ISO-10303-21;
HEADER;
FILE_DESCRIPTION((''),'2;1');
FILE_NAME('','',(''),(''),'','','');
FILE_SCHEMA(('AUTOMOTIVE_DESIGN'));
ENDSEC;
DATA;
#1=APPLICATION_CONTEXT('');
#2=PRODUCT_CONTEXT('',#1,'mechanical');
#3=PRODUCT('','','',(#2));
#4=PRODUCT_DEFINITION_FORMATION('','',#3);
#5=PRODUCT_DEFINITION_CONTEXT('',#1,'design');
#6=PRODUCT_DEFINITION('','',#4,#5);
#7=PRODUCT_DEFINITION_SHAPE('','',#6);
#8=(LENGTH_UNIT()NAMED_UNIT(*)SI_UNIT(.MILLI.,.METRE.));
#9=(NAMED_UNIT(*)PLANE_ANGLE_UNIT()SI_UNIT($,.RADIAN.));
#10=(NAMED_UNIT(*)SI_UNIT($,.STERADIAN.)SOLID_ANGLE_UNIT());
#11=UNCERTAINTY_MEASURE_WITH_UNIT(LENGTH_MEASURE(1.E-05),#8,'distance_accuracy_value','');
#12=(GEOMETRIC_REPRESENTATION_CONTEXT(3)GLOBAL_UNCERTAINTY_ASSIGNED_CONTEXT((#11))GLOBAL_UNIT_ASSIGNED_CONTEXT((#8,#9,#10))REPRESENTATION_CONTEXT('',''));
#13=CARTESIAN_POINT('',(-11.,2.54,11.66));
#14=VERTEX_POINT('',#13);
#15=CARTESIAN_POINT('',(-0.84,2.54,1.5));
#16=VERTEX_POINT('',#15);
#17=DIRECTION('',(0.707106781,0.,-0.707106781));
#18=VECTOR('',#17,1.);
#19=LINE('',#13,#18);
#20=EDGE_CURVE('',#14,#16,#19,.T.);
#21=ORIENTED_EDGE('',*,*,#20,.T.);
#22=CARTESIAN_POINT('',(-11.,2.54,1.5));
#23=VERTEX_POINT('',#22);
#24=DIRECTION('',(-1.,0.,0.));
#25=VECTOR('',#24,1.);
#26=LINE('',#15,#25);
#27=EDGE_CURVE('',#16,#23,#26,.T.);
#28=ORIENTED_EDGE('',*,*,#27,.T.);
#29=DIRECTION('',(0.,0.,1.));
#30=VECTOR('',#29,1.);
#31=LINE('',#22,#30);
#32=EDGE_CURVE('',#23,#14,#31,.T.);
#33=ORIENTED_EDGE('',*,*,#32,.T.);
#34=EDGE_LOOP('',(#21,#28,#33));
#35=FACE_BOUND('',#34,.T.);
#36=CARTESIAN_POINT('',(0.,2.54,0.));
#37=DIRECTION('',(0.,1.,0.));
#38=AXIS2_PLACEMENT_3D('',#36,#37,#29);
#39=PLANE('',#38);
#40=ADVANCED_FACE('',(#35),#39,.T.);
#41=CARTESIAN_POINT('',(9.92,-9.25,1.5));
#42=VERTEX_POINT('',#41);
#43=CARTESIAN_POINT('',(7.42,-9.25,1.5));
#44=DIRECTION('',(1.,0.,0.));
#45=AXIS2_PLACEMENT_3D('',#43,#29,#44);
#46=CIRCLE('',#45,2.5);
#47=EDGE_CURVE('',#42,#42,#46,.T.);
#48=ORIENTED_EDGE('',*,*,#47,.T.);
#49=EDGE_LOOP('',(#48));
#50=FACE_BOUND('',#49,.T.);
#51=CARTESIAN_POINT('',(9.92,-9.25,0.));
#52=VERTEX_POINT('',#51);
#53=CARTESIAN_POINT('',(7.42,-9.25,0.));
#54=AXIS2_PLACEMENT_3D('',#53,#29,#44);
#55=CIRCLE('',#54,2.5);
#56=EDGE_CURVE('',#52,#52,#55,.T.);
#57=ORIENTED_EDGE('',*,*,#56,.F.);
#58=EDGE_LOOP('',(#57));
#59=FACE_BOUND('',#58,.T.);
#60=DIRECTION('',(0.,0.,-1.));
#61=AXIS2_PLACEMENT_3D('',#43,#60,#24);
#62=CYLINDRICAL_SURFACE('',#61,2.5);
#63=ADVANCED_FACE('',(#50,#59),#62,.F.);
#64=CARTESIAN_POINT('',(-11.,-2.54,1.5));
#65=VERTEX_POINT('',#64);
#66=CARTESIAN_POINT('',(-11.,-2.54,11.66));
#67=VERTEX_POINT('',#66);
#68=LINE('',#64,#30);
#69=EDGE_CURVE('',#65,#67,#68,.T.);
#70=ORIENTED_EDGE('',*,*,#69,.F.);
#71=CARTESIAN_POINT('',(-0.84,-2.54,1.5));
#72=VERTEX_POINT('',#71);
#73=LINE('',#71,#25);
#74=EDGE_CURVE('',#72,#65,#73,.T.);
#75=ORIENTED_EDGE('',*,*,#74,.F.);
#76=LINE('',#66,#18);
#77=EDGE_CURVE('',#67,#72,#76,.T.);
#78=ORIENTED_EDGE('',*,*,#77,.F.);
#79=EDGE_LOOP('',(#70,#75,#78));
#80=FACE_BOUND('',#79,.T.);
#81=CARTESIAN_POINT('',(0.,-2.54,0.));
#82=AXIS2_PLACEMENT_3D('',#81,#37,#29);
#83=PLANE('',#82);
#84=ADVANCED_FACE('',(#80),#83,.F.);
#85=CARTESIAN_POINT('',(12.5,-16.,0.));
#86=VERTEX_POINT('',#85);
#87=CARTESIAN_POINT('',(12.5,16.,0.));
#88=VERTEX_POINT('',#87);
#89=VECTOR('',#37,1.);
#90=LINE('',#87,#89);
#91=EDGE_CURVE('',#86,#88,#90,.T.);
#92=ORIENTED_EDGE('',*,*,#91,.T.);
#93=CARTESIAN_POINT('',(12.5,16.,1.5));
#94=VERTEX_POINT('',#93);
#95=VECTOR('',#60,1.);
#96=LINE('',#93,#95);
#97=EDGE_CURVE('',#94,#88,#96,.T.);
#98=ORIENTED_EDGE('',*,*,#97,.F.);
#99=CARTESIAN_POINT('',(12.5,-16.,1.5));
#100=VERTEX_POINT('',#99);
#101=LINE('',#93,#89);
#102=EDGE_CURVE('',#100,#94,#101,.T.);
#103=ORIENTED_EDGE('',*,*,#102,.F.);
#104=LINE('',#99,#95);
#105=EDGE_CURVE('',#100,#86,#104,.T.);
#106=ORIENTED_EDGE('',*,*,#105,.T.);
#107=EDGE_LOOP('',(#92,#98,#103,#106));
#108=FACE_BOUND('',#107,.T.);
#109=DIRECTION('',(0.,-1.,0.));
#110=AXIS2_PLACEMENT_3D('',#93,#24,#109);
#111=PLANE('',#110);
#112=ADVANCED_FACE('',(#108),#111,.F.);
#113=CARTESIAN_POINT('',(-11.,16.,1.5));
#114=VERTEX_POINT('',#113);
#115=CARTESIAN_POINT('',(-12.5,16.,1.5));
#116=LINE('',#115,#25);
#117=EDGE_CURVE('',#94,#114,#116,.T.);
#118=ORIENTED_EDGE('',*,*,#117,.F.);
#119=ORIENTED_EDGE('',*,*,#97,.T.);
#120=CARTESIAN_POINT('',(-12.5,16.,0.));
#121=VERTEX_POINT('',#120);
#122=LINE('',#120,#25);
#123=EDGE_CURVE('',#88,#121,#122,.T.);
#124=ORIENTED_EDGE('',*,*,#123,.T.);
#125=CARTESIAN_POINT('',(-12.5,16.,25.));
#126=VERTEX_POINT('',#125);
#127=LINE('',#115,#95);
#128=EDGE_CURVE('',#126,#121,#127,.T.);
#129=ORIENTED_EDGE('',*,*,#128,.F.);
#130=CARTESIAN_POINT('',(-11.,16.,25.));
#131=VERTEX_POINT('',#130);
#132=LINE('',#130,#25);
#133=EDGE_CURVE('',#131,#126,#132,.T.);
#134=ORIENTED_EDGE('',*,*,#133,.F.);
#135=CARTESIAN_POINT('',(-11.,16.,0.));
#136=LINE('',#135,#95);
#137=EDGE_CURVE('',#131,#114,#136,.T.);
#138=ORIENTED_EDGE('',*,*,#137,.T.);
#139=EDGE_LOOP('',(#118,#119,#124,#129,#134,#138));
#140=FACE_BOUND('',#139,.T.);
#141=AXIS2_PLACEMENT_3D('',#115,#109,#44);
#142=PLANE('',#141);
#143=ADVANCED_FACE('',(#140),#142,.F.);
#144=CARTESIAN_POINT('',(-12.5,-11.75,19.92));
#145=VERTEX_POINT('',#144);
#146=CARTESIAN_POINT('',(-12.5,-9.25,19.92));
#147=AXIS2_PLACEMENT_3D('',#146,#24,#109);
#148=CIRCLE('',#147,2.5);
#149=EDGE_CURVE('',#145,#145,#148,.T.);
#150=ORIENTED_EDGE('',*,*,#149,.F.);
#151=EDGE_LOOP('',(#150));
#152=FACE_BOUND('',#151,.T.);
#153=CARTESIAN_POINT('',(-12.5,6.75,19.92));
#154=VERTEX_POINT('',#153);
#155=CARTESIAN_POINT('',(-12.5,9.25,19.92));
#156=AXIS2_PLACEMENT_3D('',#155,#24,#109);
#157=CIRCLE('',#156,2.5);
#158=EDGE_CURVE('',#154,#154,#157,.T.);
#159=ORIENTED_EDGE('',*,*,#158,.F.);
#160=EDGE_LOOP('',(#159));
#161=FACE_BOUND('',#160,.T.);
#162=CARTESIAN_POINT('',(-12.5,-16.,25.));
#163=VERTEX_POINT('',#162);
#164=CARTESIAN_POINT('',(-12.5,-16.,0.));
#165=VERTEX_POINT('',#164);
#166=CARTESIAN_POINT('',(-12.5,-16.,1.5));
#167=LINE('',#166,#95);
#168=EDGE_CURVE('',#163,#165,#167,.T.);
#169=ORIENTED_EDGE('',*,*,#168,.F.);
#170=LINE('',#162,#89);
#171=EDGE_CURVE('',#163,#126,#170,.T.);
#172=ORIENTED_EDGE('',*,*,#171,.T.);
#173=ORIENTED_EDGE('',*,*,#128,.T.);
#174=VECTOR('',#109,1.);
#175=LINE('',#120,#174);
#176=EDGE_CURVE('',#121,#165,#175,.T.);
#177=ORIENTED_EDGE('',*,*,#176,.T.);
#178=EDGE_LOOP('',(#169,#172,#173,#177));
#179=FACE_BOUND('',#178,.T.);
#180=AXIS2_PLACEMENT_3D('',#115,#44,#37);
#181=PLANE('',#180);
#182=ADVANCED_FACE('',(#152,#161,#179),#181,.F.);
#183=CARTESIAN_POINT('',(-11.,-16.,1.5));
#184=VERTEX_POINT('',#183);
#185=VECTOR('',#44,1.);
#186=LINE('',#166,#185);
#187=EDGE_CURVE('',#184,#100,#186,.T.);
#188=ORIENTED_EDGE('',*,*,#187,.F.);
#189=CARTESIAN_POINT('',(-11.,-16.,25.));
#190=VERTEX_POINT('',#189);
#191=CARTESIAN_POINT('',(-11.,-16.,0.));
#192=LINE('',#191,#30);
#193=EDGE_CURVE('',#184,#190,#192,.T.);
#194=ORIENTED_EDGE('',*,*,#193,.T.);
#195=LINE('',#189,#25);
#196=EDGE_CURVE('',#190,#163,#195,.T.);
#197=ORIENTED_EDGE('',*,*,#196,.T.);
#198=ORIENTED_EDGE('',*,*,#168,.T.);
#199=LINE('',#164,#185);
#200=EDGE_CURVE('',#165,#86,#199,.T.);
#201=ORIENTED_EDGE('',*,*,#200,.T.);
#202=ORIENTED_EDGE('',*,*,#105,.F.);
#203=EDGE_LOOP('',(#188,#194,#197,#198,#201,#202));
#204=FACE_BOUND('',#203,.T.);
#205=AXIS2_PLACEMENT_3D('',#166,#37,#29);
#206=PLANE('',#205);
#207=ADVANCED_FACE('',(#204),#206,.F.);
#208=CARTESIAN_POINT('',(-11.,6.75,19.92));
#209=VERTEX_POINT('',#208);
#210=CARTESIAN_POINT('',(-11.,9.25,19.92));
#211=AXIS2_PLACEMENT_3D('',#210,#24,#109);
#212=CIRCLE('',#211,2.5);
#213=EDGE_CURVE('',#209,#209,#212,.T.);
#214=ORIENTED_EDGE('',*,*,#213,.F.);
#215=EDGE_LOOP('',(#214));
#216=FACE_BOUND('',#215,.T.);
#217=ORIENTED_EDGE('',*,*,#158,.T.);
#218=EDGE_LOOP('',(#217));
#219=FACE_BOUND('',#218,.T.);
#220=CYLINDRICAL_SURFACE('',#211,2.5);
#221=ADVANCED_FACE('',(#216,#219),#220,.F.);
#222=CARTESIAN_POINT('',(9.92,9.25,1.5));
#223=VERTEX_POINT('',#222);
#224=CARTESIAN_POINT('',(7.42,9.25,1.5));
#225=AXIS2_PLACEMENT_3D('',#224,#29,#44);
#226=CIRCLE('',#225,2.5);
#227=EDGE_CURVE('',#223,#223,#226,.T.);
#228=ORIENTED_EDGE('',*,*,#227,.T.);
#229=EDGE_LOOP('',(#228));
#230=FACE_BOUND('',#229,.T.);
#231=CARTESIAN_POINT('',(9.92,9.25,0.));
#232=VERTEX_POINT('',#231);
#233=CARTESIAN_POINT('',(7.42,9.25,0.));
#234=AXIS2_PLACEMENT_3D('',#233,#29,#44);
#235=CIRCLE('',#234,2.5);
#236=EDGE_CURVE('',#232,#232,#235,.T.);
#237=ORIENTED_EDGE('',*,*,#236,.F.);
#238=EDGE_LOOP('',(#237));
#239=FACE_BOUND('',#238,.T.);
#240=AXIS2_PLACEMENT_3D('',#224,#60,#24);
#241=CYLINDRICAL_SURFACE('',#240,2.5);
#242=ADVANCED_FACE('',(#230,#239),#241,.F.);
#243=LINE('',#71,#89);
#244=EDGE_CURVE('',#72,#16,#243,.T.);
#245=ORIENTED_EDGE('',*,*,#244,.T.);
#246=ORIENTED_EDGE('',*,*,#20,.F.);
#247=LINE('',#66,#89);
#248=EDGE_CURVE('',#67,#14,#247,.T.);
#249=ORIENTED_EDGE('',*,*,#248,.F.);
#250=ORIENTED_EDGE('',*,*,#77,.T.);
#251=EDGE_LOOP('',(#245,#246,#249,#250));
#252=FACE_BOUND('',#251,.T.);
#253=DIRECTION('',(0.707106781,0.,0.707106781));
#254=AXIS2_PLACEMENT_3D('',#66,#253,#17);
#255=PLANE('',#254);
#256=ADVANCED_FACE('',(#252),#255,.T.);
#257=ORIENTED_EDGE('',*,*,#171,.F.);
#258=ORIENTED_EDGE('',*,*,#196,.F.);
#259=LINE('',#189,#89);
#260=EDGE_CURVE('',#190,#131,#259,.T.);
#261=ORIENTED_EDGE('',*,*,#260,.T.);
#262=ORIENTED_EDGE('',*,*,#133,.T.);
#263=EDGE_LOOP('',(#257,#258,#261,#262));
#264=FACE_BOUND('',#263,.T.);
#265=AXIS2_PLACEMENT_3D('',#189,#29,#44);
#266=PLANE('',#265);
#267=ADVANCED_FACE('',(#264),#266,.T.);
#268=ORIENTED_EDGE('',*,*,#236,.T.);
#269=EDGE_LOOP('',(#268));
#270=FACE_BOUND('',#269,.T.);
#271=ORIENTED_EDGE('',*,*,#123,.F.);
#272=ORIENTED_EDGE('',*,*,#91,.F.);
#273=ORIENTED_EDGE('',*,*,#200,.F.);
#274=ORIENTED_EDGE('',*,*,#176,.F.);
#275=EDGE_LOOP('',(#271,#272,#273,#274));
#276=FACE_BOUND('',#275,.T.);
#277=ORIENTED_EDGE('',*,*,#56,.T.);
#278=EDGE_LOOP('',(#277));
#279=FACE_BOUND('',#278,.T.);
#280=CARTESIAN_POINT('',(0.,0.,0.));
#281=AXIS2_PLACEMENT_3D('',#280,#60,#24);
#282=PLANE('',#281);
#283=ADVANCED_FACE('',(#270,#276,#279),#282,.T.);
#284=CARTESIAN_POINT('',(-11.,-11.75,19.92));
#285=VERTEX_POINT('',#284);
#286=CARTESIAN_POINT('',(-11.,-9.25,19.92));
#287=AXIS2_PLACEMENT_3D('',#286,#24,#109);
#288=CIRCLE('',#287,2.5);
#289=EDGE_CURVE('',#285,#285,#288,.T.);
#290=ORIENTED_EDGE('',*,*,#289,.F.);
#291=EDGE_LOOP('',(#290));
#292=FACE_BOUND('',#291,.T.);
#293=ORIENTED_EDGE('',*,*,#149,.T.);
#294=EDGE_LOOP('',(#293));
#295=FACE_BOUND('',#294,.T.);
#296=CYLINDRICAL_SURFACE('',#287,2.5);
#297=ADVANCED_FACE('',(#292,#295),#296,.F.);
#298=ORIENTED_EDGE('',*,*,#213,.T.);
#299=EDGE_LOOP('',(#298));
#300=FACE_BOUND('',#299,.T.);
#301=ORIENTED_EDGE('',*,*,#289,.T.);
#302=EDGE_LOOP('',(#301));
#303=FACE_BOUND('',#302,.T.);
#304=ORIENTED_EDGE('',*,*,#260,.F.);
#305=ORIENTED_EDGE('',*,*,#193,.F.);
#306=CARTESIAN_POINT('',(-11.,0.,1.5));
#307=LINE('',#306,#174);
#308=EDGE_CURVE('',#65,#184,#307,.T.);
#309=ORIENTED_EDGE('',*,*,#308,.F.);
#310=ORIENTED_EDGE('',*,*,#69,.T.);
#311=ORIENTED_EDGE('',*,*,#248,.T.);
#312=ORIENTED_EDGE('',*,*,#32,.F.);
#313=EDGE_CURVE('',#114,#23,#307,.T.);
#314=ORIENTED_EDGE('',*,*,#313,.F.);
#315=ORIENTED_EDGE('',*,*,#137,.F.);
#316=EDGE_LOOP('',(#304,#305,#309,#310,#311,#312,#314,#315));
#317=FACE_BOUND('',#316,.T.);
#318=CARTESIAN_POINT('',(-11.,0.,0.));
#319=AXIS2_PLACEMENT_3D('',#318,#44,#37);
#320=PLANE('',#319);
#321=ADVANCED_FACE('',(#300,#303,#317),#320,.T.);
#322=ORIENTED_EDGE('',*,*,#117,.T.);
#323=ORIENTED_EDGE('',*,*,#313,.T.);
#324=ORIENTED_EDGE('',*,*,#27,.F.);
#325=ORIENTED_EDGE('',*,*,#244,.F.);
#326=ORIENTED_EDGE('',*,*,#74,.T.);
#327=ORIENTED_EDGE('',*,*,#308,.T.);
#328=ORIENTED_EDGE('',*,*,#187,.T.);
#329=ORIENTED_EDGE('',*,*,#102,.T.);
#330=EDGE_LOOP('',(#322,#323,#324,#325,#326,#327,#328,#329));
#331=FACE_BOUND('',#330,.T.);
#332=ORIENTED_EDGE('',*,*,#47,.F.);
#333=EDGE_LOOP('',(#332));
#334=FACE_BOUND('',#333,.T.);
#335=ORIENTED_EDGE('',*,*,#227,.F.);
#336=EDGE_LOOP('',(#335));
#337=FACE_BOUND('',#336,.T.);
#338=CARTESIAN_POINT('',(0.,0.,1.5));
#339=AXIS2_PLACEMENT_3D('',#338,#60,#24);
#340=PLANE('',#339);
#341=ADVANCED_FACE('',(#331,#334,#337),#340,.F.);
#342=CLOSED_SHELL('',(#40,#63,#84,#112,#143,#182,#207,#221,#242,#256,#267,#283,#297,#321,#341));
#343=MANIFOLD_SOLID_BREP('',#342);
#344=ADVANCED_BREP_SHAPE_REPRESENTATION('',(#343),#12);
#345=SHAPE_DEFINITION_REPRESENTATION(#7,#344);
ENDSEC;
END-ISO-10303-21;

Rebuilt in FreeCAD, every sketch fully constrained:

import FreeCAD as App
import Part
import Sketcher
Q = App.Units.Quantity


def add_polygon(sketch, points):
    """Adds a closed chain of lines whose ends are joined by coincident constraints."""
    first, n = sketch.GeometryCount, len(points)
    for a, b in zip(points, points[1:] + points[:1]):
        sketch.addGeometry(Part.LineSegment(App.Vector(*a, 0), App.Vector(*b, 0)), False)
    for i in range(n):
        sketch.addConstraint(Sketcher.Constraint("Coincident", first + i, 2, first + (i + 1) % n, 1))

doc = App.newDocument("Part")
body = doc.addObject("PartDesign::Body", "Body")

sketch1 = doc.addObject("Sketcher::SketchObject", "Sketch")
body.addObject(sketch1)
sketch1.AttachmentSupport = (doc.XY_Plane, [""])
sketch1.MapMode = "FlatFace"
add_polygon(sketch1, [(-12.5, 16), (-12.5, -16), (12.5, -16), (12.5, 16)])
sketch1.addGeometry(Part.Circle(App.Vector(7.4, -9.2, 0), App.Vector(0, 0, 1), 2.5), False)
sketch1.addGeometry(Part.Circle(App.Vector(7.4, 9.2, 0), App.Vector(0, 0, 1), 2.5), False)
sketch1.addConstraint([
    Sketcher.Constraint("Vertical", 0),
    Sketcher.Constraint("Horizontal", 1),
    Sketcher.Constraint("Vertical", 2),
    Sketcher.Constraint("Horizontal", 3),
    Sketcher.Constraint("Equal", 4, 5),
    Sketcher.Constraint("Symmetric", 0, 2, 2, 2, -1, 1),
    Sketcher.Constraint("Symmetric", 4, 3, 5, 3, -1),
    Sketcher.Constraint("Diameter", 4, Q("5 mm")),
    Sketcher.Constraint("DistanceX", 1, 1, 1, 2, Q("25 mm")),
    Sketcher.Constraint("DistanceY", 0, 2, 0, 1, Q("32 mm")),
    Sketcher.Constraint("DistanceY", 4, 3, 5, 3, Q("18.5 mm")),
    Sketcher.Constraint("DistanceX", -1, 1, 4, 3, Q("7.42 mm")),
])
pad1 = doc.addObject("PartDesign::Pad", "Pad")
body.addObject(pad1)
pad1.Profile = sketch1
pad1.Length = 1.5

sketch2 = doc.addObject("Sketcher::SketchObject", "Sketch001")
body.addObject(sketch2)
sketch2.AttachmentSupport = (doc.YZ_Plane, [""])
sketch2.MapMode = "FlatFace"
sketch2.AttachmentOffset = App.Placement(App.Vector(0, 0, -12.5), App.Rotation())
add_polygon(sketch2, [(16, 0), (-16, 0), (-16, 25), (16, 25)])
sketch2.addGeometry(Part.Circle(App.Vector(-9.2, 19.9, 0), App.Vector(0, 0, 1), 2.5), False)
sketch2.addGeometry(Part.Circle(App.Vector(9.2, 19.9, 0), App.Vector(0, 0, 1), 2.5), False)
sketch2.addConstraint([
    Sketcher.Constraint("Horizontal", 0),
    Sketcher.Constraint("Vertical", 1),
    Sketcher.Constraint("Horizontal", 2),
    Sketcher.Constraint("Vertical", 3),
    Sketcher.Constraint("Equal", 4, 5),
    Sketcher.Constraint("Symmetric", 0, 2, 3, 2, -1, 1),
    Sketcher.Constraint("Symmetric", 4, 3, 5, 3, -2),
    Sketcher.Constraint("Diameter", 4, Q("5 mm")),
    Sketcher.Constraint("DistanceX", 0, 2, 0, 1, Q("32 mm")),
    Sketcher.Constraint("DistanceY", 1, 1, 1, 2, Q("25 mm")),
    Sketcher.Constraint("DistanceX", 4, 3, 5, 3, Q("18.5 mm")),
    Sketcher.Constraint("DistanceY", -1, 1, 4, 3, Q("19.92 mm")),
])
pad2 = doc.addObject("PartDesign::Pad", "Pad001")
body.addObject(pad2)
pad2.Profile = sketch2
pad2.Length = 1.5

sketch3 = doc.addObject("Sketcher::SketchObject", "Sketch002")
body.addObject(sketch3)
sketch3.AttachmentSupport = (doc.XZ_Plane, [""])
sketch3.MapMode = "FlatFace"
add_polygon(sketch3, [(-11, 2), (-11, 12), (-1, 2)])
sketch3.addConstraint([
    Sketcher.Constraint("Vertical", 0),
    Sketcher.Constraint("Horizontal", 2),
    Sketcher.Constraint("Equal", 2, 0),
    Sketcher.Constraint("DistanceX", 0, 2, -1, 1, Q("11 mm")),
    Sketcher.Constraint("DistanceX", 2, 2, 2, 1, Q("10.16 mm")),
    Sketcher.Constraint("DistanceY", -1, 1, 1, 2, Q("1.5 mm")),
])
pad3 = doc.addObject("PartDesign::Pad", "Pad002")
body.addObject(pad3)
pad3.Profile = sketch3
pad3.Type = "TwoLengths"
pad3.Length = 2.54
pad3.Length2 = 2.54
pad3.Reversed = True

doc.recompute()
